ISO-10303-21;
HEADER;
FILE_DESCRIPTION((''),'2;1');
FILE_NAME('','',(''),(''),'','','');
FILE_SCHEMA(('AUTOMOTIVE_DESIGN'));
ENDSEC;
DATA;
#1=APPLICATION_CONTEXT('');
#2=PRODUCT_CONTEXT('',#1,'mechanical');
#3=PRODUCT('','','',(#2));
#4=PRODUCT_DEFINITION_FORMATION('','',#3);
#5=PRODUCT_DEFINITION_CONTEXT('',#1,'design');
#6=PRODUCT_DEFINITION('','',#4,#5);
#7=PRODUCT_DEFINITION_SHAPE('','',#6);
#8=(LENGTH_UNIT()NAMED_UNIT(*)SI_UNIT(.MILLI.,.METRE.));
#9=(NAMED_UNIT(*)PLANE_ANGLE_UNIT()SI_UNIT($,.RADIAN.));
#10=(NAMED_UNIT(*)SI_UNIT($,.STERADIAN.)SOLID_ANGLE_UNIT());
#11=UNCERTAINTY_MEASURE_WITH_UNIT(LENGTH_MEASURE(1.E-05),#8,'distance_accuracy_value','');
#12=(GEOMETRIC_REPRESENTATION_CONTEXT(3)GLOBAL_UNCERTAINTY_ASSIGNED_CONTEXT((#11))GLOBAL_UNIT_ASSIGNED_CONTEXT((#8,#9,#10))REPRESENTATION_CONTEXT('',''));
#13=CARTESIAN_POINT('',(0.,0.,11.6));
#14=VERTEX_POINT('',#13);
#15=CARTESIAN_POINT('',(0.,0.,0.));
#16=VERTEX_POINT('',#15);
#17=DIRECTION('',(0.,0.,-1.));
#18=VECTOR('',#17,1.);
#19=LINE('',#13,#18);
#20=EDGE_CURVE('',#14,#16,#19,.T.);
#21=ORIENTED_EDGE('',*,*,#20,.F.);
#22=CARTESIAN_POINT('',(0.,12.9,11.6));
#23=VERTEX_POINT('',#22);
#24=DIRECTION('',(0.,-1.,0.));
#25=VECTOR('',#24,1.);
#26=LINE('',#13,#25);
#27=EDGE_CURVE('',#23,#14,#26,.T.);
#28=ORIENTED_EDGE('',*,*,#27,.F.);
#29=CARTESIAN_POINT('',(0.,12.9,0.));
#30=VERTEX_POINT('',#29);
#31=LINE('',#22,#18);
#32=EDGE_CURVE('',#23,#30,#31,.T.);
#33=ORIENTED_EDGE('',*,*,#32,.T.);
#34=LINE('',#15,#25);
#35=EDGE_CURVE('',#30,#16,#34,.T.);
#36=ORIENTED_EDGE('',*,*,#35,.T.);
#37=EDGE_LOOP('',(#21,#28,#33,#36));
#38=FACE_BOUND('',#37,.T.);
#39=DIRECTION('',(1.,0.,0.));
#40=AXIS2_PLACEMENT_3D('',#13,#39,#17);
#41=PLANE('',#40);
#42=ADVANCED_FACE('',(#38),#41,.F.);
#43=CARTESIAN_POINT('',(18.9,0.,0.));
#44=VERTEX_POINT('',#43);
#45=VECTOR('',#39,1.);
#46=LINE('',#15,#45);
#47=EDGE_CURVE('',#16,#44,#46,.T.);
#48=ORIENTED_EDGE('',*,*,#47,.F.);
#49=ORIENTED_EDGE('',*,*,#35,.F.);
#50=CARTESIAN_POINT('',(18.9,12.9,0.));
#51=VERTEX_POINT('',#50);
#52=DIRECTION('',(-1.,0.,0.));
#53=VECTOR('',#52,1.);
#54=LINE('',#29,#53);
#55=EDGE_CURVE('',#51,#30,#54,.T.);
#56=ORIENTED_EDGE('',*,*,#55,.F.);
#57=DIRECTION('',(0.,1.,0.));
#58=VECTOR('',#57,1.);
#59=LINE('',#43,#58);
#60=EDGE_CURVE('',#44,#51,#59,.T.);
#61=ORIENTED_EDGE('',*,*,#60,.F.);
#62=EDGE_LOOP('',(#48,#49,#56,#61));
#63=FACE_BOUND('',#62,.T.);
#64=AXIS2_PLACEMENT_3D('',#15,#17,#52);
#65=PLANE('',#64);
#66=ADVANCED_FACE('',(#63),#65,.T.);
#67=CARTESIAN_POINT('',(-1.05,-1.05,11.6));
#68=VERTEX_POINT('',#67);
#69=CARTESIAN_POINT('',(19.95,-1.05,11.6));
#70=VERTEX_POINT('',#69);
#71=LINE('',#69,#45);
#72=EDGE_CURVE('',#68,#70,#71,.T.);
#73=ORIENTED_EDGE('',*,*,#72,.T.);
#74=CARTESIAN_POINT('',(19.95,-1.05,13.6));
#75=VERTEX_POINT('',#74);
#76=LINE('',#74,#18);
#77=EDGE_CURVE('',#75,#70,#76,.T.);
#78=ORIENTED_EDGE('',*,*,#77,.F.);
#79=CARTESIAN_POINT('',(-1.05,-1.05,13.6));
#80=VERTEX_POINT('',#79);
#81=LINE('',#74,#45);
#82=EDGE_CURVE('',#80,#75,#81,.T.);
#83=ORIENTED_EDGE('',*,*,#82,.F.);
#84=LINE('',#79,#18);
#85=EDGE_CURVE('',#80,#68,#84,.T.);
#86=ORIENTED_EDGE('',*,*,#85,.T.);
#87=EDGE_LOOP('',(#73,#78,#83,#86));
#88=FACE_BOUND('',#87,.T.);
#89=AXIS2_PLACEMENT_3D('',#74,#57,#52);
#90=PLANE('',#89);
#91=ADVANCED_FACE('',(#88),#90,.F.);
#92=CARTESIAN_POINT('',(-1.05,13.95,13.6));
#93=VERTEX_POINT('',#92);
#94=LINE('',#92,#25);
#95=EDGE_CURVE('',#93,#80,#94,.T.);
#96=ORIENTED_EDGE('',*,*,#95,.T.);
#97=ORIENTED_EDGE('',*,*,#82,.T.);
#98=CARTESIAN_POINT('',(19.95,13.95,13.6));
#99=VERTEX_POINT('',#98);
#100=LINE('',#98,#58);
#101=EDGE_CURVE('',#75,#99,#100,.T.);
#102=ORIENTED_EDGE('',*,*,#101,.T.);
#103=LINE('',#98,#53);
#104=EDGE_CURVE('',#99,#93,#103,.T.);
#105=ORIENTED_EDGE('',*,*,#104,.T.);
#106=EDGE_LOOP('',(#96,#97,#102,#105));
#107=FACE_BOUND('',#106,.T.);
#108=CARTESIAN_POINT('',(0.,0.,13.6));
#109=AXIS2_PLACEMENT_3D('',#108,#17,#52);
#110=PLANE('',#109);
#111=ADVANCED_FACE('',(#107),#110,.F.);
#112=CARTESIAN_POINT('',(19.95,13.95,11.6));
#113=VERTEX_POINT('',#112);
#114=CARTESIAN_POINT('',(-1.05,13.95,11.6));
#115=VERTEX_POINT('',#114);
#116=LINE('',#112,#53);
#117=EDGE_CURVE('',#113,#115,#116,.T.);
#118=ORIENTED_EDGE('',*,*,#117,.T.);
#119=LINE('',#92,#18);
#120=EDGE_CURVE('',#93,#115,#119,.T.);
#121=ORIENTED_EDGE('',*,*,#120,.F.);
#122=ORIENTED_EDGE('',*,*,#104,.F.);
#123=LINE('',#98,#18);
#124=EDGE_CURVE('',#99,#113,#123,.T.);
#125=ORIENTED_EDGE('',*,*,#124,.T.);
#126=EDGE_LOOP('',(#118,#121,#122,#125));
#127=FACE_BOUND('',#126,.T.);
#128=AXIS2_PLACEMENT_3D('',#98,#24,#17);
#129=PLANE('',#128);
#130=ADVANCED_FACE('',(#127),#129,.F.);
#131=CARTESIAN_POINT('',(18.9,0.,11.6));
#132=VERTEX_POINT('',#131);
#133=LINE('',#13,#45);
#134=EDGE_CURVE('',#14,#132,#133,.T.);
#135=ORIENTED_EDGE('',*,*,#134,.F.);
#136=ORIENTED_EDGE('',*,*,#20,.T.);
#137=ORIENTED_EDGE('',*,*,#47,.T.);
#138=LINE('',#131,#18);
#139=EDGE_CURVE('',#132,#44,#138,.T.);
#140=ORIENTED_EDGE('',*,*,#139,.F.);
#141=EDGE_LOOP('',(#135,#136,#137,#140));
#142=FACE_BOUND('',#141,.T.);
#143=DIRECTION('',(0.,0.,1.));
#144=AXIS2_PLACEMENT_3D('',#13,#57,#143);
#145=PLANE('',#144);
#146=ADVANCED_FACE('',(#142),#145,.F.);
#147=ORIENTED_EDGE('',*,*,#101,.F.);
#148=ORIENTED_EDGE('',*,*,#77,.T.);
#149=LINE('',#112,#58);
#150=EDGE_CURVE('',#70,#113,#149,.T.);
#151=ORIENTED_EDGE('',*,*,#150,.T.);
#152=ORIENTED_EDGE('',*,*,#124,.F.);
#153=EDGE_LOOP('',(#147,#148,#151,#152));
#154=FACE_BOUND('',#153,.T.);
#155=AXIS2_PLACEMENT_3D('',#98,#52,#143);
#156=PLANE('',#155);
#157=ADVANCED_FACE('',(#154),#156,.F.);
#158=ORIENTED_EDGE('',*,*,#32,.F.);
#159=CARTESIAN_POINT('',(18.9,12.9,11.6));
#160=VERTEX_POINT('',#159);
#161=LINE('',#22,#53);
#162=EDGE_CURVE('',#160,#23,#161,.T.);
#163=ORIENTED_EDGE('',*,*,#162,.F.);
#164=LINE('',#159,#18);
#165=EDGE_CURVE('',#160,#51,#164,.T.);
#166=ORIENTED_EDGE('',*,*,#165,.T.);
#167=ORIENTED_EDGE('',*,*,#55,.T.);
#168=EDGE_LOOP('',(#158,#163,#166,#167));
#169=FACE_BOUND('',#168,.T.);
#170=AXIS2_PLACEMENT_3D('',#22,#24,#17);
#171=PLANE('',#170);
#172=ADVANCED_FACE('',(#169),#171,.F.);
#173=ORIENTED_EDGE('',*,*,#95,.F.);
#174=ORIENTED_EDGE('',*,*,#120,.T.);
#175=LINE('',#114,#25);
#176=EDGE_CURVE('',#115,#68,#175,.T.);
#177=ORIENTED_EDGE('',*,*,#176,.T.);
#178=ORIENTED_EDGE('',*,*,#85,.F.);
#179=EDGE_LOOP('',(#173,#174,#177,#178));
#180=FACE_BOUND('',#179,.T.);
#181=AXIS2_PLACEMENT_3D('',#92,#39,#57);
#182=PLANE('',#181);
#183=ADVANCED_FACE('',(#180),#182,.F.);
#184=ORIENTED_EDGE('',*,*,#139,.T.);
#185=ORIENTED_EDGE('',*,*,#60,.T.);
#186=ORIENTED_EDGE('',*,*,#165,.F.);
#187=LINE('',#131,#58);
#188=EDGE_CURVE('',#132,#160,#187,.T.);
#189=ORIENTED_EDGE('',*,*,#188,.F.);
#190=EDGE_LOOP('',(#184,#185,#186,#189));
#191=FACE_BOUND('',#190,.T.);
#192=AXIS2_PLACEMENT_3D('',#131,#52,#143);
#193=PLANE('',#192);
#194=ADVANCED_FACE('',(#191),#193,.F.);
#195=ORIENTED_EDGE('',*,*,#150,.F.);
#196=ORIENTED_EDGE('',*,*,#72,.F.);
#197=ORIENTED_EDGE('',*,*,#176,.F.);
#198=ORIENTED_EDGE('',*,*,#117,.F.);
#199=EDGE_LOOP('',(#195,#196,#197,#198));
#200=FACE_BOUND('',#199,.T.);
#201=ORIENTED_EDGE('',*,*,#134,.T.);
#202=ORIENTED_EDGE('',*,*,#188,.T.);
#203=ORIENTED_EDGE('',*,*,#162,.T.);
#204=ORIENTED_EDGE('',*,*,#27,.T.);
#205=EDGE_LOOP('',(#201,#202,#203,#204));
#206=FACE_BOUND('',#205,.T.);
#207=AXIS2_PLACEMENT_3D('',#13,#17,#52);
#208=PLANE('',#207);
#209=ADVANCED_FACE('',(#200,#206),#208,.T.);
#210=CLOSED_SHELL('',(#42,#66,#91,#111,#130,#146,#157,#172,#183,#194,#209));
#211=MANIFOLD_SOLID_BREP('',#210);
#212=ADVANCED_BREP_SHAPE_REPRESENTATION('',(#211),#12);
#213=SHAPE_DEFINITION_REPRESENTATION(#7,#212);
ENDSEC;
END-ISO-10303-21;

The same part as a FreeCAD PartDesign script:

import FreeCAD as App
import Part
import Sketcher
Q = App.Units.Quantity

doc = App.newDocument("Part")
body = doc.addObject("PartDesign::Body", "Body")

# Sketch on XY plane
sketch1 = doc.addObject("Sketcher::SketchObject", "Sketch")
body.addObject(sketch1)
sketch1.AttachmentSupport = (doc.XY_Plane, [""])
sketch1.MapMode = "FlatFace"
sketch1.addGeometry(Part.LineSegment(App.Vector(0, 12.9, 0), App.Vector(0, 0, 0)), False)
sketch1.addGeometry(Part.LineSegment(App.Vector(0, 0, 0), App.Vector(18.9, 0, 0)), False)
sketch1.addGeometry(Part.LineSegment(App.Vector(18.9, 0, 0), App.Vector(18.9, 12.9, 0)), False)
sketch1.addGeometry(Part.LineSegment(App.Vector(18.9, 12.9, 0), App.Vector(0, 12.9, 0)), False)
sketch1.addConstraint(Sketcher.Constraint("Coincident", 0, 2, 1, 1))
sketch1.addConstraint(Sketcher.Constraint("Coincident", 1, 2, 2, 1))
sketch1.addConstraint(Sketcher.Constraint("Coincident", 2, 2, 3, 1))
sketch1.addConstraint(Sketcher.Constraint("Coincident", 3, 2, 0, 1))
sketch1.addConstraint(Sketcher.Constraint("Vertical", 0))
sketch1.addConstraint(Sketcher.Constraint("Horizontal", 1))
sketch1.addConstraint(Sketcher.Constraint("Vertical", 2))
sketch1.addConstraint(Sketcher.Constraint("Horizontal", 3))
sketch1.addConstraint(Sketcher.Constraint("Coincident", 0, 2, -1, 1))
sketch1.addConstraint(Sketcher.Constraint("DistanceX", 1, 1, 1, 2, Q("18.9 mm")))
sketch1.addConstraint(Sketcher.Constraint("DistanceY", 0, 2, 0, 1, Q("12.9 mm")))
pad1 = doc.addObject("PartDesign::Pad", "Pad")
body.addObject(pad1)
pad1.Profile = sketch1
pad1.Length = 11.6

# Sketch on XY plane
sketch2 = doc.addObject("Sketcher::SketchObject", "Sketch001")
body.addObject(sketch2)
sketch2.AttachmentSupport = (doc.XY_Plane, [""])
sketch2.MapMode = "FlatFace"
sketch2.AttachmentOffset = App.Placement(App.Vector(0, 0, 11.6), App.Rotation())
sketch2.addGeometry(Part.LineSegment(App.Vector(-1.05, 13.95, 0), App.Vector(-1.05, -1.05, 0)), False)
sketch2.addGeometry(Part.LineSegment(App.Vector(-1.05, -1.05, 0), App.Vector(19.95, -1.05, 0)), False)
sketch2.addGeometry(Part.LineSegment(App.Vector(19.95, -1.05, 0), App.Vector(19.95, 13.95, 0)), False)
sketch2.addGeometry(Part.LineSegment(App.Vector(19.95, 13.95, 0), App.Vector(-1.05, 13.95, 0)), False)
sketch2.addConstraint(Sketcher.Constraint("Coincident", 0, 2, 1, 1))
sketch2.addConstraint(Sketcher.Constraint("Coincident", 1, 2, 2, 1))
sketch2.addConstraint(Sketcher.Constraint("Coincident", 2, 2, 3, 1))
sketch2.addConstraint(Sketcher.Constraint("Coincident", 3, 2, 0, 1))
sketch2.addConstraint(Sketcher.Constraint("Vertical", 0))
sketch2.addConstraint(Sketcher.Constraint("Horizontal", 1))
sketch2.addConstraint(Sketcher.Constraint("Vertical", 2))
sketch2.addConstraint(Sketcher.Constraint("Horizontal", 3))
sketch2.addConstraint(Sketcher.Constraint("DistanceX", 1, 1, 1, 2, Q("21 mm")))
sketch2.addConstraint(Sketcher.Constraint("DistanceY", 0, 2, 0, 1, Q("15 mm")))
sketch2.addConstraint(Sketcher.Constraint("DistanceX", 0, 2, -1, 1, Q("1.05 mm")))
sketch2.addConstraint(Sketcher.Constraint("DistanceY", 0, 2, -1, 1, Q("1.05 mm")))
pad2 = doc.addObject("PartDesign::Pad", "Pad001")
body.addObject(pad2)
pad2.Profile = sketch2
pad2.Length = 2

doc.recompute()
